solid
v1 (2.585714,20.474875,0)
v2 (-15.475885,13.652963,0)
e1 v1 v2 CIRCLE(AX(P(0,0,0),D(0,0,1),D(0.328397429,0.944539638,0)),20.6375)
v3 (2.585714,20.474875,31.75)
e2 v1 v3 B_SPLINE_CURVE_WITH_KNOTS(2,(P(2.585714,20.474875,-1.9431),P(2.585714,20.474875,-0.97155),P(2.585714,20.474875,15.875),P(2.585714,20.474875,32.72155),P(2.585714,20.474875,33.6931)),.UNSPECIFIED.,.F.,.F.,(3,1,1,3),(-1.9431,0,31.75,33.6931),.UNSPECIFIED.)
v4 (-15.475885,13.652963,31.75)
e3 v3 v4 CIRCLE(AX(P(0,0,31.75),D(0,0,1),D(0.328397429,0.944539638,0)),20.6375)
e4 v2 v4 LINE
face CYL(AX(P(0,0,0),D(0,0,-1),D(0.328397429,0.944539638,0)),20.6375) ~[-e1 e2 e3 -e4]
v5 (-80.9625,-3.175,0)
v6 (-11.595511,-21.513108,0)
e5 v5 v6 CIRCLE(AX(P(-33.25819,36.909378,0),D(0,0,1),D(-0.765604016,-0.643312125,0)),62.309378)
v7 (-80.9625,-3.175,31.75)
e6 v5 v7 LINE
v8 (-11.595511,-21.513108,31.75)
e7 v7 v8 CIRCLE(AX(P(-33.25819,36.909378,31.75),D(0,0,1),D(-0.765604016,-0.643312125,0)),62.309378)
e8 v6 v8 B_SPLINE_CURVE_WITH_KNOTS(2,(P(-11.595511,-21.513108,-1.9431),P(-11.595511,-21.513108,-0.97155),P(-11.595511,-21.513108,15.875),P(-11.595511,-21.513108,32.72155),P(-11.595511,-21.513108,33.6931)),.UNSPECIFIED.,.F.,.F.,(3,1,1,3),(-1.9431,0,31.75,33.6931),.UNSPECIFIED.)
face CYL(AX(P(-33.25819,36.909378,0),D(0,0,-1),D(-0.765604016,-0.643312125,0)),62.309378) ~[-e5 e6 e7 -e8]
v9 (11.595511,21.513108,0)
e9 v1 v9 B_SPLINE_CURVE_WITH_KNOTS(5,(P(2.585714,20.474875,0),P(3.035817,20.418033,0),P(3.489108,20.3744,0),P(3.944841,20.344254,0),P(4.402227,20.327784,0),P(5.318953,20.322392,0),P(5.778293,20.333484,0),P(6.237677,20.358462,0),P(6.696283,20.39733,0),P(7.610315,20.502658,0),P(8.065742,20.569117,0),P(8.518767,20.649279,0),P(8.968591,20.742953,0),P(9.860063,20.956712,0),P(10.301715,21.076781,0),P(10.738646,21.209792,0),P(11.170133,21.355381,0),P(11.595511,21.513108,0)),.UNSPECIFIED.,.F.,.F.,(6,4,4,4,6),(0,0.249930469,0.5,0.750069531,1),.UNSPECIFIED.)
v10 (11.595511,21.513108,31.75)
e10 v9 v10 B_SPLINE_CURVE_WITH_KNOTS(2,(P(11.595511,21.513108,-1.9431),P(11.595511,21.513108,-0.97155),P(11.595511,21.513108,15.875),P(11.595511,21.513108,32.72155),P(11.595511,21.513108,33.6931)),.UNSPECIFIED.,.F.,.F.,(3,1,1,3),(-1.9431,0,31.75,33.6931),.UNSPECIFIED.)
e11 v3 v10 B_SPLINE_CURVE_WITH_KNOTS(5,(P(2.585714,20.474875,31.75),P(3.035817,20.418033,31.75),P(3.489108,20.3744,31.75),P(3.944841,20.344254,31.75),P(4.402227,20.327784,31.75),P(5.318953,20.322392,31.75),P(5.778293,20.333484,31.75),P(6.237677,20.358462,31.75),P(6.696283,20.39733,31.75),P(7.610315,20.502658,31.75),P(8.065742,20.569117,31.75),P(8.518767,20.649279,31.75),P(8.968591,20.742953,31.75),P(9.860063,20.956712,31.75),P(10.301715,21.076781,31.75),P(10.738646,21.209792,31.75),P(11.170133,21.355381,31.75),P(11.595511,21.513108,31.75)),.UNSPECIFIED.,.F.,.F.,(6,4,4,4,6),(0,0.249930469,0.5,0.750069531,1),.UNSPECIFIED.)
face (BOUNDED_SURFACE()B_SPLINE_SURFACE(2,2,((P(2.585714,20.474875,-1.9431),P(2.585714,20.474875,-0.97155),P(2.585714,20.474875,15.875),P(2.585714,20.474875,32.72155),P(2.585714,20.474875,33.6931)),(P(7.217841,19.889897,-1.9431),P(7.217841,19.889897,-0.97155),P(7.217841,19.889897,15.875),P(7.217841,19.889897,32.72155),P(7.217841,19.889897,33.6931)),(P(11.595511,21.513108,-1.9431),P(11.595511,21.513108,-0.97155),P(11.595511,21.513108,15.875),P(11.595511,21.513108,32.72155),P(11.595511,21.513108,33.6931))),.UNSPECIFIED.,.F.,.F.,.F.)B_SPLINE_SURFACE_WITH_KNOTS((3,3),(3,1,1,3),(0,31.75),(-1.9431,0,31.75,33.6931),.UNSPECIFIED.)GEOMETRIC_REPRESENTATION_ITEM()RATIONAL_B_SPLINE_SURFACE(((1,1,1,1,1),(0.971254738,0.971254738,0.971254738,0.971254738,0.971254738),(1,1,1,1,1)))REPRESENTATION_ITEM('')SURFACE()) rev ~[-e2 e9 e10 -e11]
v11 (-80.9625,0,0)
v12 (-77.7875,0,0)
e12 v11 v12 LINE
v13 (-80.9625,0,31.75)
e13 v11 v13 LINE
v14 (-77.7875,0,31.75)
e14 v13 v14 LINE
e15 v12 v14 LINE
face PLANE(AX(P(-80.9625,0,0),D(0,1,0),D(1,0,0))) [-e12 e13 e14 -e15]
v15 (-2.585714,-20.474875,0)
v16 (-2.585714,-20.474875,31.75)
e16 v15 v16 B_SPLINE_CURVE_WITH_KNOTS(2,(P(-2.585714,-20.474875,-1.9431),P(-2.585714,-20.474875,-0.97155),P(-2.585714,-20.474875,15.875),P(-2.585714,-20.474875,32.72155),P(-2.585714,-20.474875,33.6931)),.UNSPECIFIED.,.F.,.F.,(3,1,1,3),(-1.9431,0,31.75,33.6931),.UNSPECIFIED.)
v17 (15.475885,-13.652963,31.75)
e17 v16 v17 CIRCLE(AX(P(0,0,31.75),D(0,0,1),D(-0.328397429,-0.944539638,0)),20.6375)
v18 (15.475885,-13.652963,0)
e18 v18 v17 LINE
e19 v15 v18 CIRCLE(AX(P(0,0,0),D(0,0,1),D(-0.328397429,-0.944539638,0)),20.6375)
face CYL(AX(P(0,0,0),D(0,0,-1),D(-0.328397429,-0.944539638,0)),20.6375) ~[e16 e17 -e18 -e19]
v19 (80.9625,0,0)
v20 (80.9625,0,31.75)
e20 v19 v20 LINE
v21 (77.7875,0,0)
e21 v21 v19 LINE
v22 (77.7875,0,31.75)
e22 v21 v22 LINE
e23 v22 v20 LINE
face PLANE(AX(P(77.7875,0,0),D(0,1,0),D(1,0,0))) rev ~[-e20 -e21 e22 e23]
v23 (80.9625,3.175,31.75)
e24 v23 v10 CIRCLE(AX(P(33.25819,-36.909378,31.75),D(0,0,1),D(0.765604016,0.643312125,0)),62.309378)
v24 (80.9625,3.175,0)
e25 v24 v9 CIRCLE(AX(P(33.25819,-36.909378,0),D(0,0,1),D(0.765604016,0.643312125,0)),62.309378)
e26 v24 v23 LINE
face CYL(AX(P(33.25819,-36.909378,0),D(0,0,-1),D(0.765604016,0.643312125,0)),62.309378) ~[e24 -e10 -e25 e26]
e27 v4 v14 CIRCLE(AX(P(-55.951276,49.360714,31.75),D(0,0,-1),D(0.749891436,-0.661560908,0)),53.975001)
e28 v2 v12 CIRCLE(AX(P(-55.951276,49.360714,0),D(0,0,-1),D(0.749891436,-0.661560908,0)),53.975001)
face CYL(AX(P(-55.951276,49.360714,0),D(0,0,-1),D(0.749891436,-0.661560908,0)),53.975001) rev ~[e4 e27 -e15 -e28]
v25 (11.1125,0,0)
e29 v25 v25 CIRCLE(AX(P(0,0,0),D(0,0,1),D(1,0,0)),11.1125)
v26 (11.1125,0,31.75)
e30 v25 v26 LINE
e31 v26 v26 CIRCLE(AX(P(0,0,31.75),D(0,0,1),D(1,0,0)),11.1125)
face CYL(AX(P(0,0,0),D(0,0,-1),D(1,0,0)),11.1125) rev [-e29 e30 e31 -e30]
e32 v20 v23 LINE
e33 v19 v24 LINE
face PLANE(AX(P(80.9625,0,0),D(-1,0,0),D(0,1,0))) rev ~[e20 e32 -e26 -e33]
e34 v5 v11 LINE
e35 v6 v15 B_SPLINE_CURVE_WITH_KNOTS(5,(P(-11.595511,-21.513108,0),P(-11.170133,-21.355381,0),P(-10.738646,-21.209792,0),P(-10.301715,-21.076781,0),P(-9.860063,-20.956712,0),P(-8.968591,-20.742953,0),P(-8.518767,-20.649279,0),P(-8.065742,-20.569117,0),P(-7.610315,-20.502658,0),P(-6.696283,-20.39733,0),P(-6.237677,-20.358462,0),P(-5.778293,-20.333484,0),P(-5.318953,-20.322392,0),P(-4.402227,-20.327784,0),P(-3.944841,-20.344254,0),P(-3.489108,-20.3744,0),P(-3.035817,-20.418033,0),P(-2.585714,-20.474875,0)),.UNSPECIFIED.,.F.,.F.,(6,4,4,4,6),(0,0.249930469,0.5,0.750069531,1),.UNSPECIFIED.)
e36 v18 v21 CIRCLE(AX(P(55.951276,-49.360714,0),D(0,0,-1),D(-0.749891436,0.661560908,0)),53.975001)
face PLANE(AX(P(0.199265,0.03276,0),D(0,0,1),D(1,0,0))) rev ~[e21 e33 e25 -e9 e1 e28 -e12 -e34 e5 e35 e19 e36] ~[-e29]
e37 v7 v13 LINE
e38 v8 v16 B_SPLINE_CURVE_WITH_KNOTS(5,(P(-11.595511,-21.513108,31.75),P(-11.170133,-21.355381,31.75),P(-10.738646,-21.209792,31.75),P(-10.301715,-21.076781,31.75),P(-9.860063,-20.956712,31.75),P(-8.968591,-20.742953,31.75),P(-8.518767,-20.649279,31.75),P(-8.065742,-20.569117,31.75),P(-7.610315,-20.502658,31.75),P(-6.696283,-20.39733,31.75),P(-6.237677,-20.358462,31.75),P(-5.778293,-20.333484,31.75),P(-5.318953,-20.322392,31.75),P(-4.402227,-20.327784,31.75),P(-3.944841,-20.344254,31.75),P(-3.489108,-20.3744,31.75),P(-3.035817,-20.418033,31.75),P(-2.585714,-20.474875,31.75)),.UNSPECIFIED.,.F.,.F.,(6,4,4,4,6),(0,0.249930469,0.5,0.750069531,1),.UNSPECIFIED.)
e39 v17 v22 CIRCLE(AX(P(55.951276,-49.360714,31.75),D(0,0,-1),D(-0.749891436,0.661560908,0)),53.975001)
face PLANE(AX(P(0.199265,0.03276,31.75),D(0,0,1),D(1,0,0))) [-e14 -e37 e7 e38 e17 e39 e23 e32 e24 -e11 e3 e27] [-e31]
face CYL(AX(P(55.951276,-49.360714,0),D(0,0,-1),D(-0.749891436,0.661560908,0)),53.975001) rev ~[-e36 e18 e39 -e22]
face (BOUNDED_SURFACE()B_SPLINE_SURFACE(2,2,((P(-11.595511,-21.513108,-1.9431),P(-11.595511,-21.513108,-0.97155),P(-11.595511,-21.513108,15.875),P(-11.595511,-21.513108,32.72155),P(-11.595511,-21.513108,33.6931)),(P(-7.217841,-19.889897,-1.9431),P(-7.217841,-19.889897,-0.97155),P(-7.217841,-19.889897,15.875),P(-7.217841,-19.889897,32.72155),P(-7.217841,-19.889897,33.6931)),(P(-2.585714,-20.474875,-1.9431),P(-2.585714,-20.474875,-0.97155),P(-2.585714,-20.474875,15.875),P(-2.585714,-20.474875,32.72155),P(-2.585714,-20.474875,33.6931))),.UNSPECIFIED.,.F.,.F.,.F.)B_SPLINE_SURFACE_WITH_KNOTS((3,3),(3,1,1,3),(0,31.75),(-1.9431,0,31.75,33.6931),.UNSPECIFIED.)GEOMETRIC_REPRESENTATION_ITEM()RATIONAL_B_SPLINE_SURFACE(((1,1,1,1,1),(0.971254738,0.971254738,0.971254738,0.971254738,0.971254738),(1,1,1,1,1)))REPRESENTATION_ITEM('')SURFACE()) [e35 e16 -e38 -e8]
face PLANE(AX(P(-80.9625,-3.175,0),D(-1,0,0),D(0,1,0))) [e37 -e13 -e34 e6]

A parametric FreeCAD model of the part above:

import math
import FreeCAD as App
import Part
import Sketcher
Q = App.Units.Quantity


def edges_at(feature, points):
    """Names of the edges that pass closest to the given points."""
    edges = feature.Shape.Edges
    near = lambda p: min(range(len(edges)), key=lambda i: edges[i].distToShape(Part.Vertex(*p))[0])
    return sorted({f"Edge{near(p) + 1}" for p in points})

doc = App.newDocument("Part")
params = doc.addObject("Spreadsheet::Sheet", "Params")
for row, (alias, value) in enumerate([
    ("sketch1_radius", "0.8125 in"),
    ("sketch1_radius2", "2.125 in"),
    ("sketch1_radius3", "2.4531251 in"),
    ("sketch1_width", "0.125 in"),
    ("pad1_length", "1.25 in"),
    ("sketch2_diameter", "0.875 in"),
    ("pocket1_length", "1.25 in"),
    ("fillet_radius", "0.75 in"),
    ("fillet2_radius", "0.75 in"),
], start=1):
    params.set(f"A{row}", alias)
    params.set(f"B{row}", "=" + value)
    params.setAlias(f"B{row}", alias)

body = doc.addObject("PartDesign::Body", "Body")

sketch1 = doc.addObject("Sketcher::SketchObject", "Sketch")
body.addObject(sketch1)
sketch1.AttachmentSupport = (doc.XY_Plane, [""])
sketch1.MapMode = "FlatFace"
sketch1.addGeometry(Part.ArcOfCircle(Part.Circle(App.Vector(0, 0, 0), App.Vector(0, 0, 1), 20.6), math.radians(71), math.radians(139)), False)
sketch1.addGeometry(Part.ArcOfCircle(Part.Circle(App.Vector(-56, 49.4, 0), App.Vector(0, 0, 1), 54), math.radians(-114), math.radians(-41)), False)
sketch1.addGeometry(Part.LineSegment(App.Vector(-77.8, 0, 0), App.Vector(-81, 0, 0)), False)
sketch1.addGeometry(Part.LineSegment(App.Vector(-81, 0, 0), App.Vector(-81, -3.2, 0)), False)
sketch1.addGeometry(Part.ArcOfCircle(Part.Circle(App.Vector(-33.3, 36.9, 0), App.Vector(0, 0, 1), 62.3), math.radians(-140), math.radians(-65)), False)
sketch1.addGeometry(Part.ArcOfCircle(Part.Circle(App.Vector(0, 0, 0), App.Vector(0, 0, 1), 20.6), math.radians(-109), math.radians(-41)), False)
sketch1.addGeometry(Part.ArcOfCircle(Part.Circle(App.Vector(56, -49.4, 0), App.Vector(0, 0, 1), 54), math.radians(66), math.radians(139)), False)
sketch1.addGeometry(Part.LineSegment(App.Vector(77.8, 0, 0), App.Vector(81, 0, 0)), False)
sketch1.addGeometry(Part.LineSegment(App.Vector(81, 0, 0), App.Vector(81, 3.2, 0)), False)
sketch1.addGeometry(Part.ArcOfCircle(Part.Circle(App.Vector(33.3, -36.9, 0), App.Vector(0, 0, 1), 62.3), math.radians(40), math.radians(115)), False)
sketch1.addConstraint(Sketcher.Constraint("Tangent", 0, 2, 1, 2))
sketch1.addConstraint(Sketcher.Constraint("Coincident", 1, 1, 2, 1))
sketch1.addConstraint(Sketcher.Constraint("Coincident", 2, 2, 3, 1))
sketch1.addConstraint(Sketcher.Constraint("Coincident", 3, 2, 4, 1))
sketch1.addConstraint(Sketcher.Constraint("Coincident", 4, 2, 5, 1))
sketch1.addConstraint(Sketcher.Constraint("Tangent", 5, 2, 6, 2))
sketch1.addConstraint(Sketcher.Constraint("Coincident", 6, 1, 7, 1))
sketch1.addConstraint(Sketcher.Constraint("Coincident", 7, 2, 8, 1))
sketch1.addConstraint(Sketcher.Constraint("Coincident", 8, 2, 9, 1))
sketch1.addConstraint(Sketcher.Constraint("Coincident", 9, 2, 0, 1))
sketch1.addConstraint(Sketcher.Constraint("Horizontal", 2))
sketch1.addConstraint(Sketcher.Constraint("Vertical", 3))
sketch1.addConstraint(Sketcher.Constraint("Horizontal", 7))
sketch1.addConstraint(Sketcher.Constraint("Vertical", 8))
sketch1.addConstraint(Sketcher.Constraint("Coincident", 0, 3, -1, 1))
sketch1.addConstraint(Sketcher.Constraint("Coincident", 5, 3, -1, 1))
sketch1.addConstraint(Sketcher.Constraint("Equal", 0, 5))
sketch1.addConstraint(Sketcher.Constraint("Equal", 1, 6))
sketch1.addConstraint(Sketcher.Constraint("Equal", 4, 9))
sketch1.addConstraint(Sketcher.Constraint("Symmetric", 4, 3, 9, 3, -1, 1))
sketch1.addConstraint(Sketcher.Constraint("Symmetric", 1, 1, 6, 1, -1, 1))
sketch1.addConstraint(Sketcher.Constraint("Symmetric", 2, 2, 7, 2, -2))
sketch1.addConstraint(Sketcher.Constraint("Equal", 7, 3))
sketch1.addConstraint(Sketcher.Constraint("Radius", 0, Q("0.8125 in")))
sketch1.addConstraint(Sketcher.Constraint("Radius", 1, Q("2.125 in")))
sketch1.addConstraint(Sketcher.Constraint("Radius", 4, Q("2.4531251 in")))
sketch1.addConstraint(Sketcher.Constraint("DistanceX", 2, 2, 2, 1, Q("0.125 in")))
sketch1.addConstraint(Sketcher.Constraint("DistanceY", -1, 1, 4, 3, Q("1.4531251 in")))
sketch1.addConstraint(Sketcher.Constraint("DistanceX", 1, 1, -1, 1, Q("3.0625 in")))
sketch1.setExpression("Constraints[23]", "Params.sketch1_radius")
sketch1.setExpression("Constraints[24]", "Params.sketch1_radius2")
sketch1.setExpression("Constraints[25]", "Params.sketch1_radius3")
sketch1.setExpression("Constraints[26]", "Params.sketch1_width")
pad1 = doc.addObject("PartDesign::Pad", "Pad")
body.addObject(pad1)
pad1.Profile = sketch1
pad1.setExpression("Length", "Params.pad1_length")

sketch2 = doc.addObject("Sketcher::SketchObject", "Sketch001")
body.addObject(sketch2)
sketch2.AttachmentSupport = (doc.XY_Plane, [""])
sketch2.MapMode = "FlatFace"
sketch2.addGeometry(Part.Circle(App.Vector(0, 0, 0), App.Vector(0, 0, 1), 11), False)
sketch2.addConstraint(Sketcher.Constraint("Coincident", 0, 3, -1, 1))
sketch2.addConstraint(Sketcher.Constraint("Diameter", 0, Q("0.875 in")))
sketch2.setExpression("Constraints[1]", "Params.sketch2_diameter")
pocket1 = doc.addObject("PartDesign::Pocket", "Pocket")
body.addObject(pocket1)
pocket1.Profile = sketch2
pocket1.setExpression("Length", "Params.pocket1_length")
pocket1.Reversed = True
doc.recompute()

fillet = doc.addObject("PartDesign::Fillet", "Fillet")
body.addObject(fillet)
fillet.Base = (pocket1, edges_at(pocket1, [(-6.777, -19.493, 15.875)]))
fillet.setExpression("Radius", "Params.fillet_radius")
doc.recompute()

fillet2 = doc.addObject("PartDesign::Fillet", "Fillet001")
body.addObject(fillet2)
fillet2.Base = (fillet, edges_at(fillet, [(6.777, 19.493, 15.875)]))
fillet2.setExpression("Radius", "Params.fillet2_radius")

doc.recompute()
